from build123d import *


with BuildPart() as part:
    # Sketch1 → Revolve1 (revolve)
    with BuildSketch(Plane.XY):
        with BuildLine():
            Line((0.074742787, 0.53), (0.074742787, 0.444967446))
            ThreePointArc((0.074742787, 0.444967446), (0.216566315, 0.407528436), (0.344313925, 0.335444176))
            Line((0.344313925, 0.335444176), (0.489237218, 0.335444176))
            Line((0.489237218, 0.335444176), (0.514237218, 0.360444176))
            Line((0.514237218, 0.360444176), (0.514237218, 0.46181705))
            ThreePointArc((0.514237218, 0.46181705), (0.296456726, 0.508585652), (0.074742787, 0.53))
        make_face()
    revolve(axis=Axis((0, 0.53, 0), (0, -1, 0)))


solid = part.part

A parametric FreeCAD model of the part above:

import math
import FreeCAD as App
import Part
import Sketcher
from FreeCAD import Vector
Q = App.Units.Quantity

doc = App.newDocument("Part")
params = doc.addObject("Spreadsheet::Sheet", "Params")
for row, (alias, value) in enumerate([
    ("revolution_angle", "360 deg"),
], start=1):
    params.set(f"A{row}", alias)
    params.set(f"B{row}", "=" + value)
    params.setAlias(f"B{row}", alias)

body = doc.addObject("PartDesign::Body", "Body")

sketch1 = body.newObject("Sketcher::SketchObject", "Sketch")
sketch1.AttachmentSupport = (doc.getObject("XY_Plane"), [""])
sketch1.MapMode = "FlatFace"
sketch1.addGeometry(Part.LineSegment(Vector(0.075, 0.53, 0), Vector(0.075, 0.445, 0)), False)
sketch1.addGeometry(Part.ArcOfCircle(Part.Circle(Vector(0, -0.126, 0), Vector(0, 0, 1), 0.575), math.radians(53), math.radians(83)), False)
sketch1.addGeometry(Part.LineSegment(Vector(0.344, 0.335, 0), Vector(0.489, 0.335, 0)), False)
sketch1.addGeometry(Part.LineSegment(Vector(0.489, 0.335, 0), Vector(0.514, 0.36, 0)), False)
sketch1.addGeometry(Part.LineSegment(Vector(0.514, 0.36, 0), Vector(0.514, 0.462, 0)), False)
sketch1.addGeometry(Part.ArcOfCircle(Part.Circle(Vector(0, -1.402, 0), Vector(0, 0, 1), 1.934), math.radians(74.58), math.radians(87.78)), False)
sketch1.addConstraint(Sketcher.Constraint("Coincident", 0, 2, 1, 2))
sketch1.addConstraint(Sketcher.Constraint("Coincident", 1, 1, 2, 1))
sketch1.addConstraint(Sketcher.Constraint("Coincident", 2, 2, 3, 1))
sketch1.addConstraint(Sketcher.Constraint("Coincident", 3, 2, 4, 1))
sketch1.addConstraint(Sketcher.Constraint("Coincident", 4, 2, 5, 1))
sketch1.addConstraint(Sketcher.Constraint("Coincident", 5, 2, 0, 1))
sketch1.addConstraint(Sketcher.Constraint("Vertical", 0))
sketch1.addConstraint(Sketcher.Constraint("Horizontal", 2))
sketch1.addConstraint(Sketcher.Constraint("Vertical", 4))
sketch1.addConstraint(Sketcher.Constraint("PointOnObject", 1, 3, -2))
sketch1.addConstraint(Sketcher.Constraint("PointOnObject", 5, 3, -2))
sketch1.addConstraint(Sketcher.Constraint("Angle", 3, Q("45 deg")))
sketch1.addConstraint(Sketcher.Constraint("DistanceY", -1, 1, 5, 2, Q("0.53 mm")))
sketch1.addConstraint(Sketcher.Constraint("Radius", 1, Q("0.575352 mm")))
sketch1.addConstraint(Sketcher.Constraint("Radius", 5, Q("1.933763 mm")))
sketch1.addConstraint(Sketcher.Constraint("DistanceX", 2, 2, 3, 2, Q("0.025 mm")))
sketch1.addConstraint(Sketcher.Constraint("DistanceX", 2, 1, 2, 2, Q("0.144923 mm")))
sketch1.addConstraint(Sketcher.Constraint("DistanceY", 0, 2, 0, 1, Q("0.085033 mm")))
sketch1.addConstraint(Sketcher.Constraint("DistanceY", 4, 1, 4, 2, Q("0.101373 mm")))
sketch1.addConstraint(Sketcher.Constraint("DistanceY", 1, 3, -1, 1, Q("0.125509 mm")))
revolution = body.newObject("PartDesign::Revolution", "Revolution")
revolution.Profile = sketch1
revolution.ReferenceAxis = (sketch1, ["V_Axis"])
revolution.setExpression("Angle", "Params.revolution_angle")

doc.recompute()
